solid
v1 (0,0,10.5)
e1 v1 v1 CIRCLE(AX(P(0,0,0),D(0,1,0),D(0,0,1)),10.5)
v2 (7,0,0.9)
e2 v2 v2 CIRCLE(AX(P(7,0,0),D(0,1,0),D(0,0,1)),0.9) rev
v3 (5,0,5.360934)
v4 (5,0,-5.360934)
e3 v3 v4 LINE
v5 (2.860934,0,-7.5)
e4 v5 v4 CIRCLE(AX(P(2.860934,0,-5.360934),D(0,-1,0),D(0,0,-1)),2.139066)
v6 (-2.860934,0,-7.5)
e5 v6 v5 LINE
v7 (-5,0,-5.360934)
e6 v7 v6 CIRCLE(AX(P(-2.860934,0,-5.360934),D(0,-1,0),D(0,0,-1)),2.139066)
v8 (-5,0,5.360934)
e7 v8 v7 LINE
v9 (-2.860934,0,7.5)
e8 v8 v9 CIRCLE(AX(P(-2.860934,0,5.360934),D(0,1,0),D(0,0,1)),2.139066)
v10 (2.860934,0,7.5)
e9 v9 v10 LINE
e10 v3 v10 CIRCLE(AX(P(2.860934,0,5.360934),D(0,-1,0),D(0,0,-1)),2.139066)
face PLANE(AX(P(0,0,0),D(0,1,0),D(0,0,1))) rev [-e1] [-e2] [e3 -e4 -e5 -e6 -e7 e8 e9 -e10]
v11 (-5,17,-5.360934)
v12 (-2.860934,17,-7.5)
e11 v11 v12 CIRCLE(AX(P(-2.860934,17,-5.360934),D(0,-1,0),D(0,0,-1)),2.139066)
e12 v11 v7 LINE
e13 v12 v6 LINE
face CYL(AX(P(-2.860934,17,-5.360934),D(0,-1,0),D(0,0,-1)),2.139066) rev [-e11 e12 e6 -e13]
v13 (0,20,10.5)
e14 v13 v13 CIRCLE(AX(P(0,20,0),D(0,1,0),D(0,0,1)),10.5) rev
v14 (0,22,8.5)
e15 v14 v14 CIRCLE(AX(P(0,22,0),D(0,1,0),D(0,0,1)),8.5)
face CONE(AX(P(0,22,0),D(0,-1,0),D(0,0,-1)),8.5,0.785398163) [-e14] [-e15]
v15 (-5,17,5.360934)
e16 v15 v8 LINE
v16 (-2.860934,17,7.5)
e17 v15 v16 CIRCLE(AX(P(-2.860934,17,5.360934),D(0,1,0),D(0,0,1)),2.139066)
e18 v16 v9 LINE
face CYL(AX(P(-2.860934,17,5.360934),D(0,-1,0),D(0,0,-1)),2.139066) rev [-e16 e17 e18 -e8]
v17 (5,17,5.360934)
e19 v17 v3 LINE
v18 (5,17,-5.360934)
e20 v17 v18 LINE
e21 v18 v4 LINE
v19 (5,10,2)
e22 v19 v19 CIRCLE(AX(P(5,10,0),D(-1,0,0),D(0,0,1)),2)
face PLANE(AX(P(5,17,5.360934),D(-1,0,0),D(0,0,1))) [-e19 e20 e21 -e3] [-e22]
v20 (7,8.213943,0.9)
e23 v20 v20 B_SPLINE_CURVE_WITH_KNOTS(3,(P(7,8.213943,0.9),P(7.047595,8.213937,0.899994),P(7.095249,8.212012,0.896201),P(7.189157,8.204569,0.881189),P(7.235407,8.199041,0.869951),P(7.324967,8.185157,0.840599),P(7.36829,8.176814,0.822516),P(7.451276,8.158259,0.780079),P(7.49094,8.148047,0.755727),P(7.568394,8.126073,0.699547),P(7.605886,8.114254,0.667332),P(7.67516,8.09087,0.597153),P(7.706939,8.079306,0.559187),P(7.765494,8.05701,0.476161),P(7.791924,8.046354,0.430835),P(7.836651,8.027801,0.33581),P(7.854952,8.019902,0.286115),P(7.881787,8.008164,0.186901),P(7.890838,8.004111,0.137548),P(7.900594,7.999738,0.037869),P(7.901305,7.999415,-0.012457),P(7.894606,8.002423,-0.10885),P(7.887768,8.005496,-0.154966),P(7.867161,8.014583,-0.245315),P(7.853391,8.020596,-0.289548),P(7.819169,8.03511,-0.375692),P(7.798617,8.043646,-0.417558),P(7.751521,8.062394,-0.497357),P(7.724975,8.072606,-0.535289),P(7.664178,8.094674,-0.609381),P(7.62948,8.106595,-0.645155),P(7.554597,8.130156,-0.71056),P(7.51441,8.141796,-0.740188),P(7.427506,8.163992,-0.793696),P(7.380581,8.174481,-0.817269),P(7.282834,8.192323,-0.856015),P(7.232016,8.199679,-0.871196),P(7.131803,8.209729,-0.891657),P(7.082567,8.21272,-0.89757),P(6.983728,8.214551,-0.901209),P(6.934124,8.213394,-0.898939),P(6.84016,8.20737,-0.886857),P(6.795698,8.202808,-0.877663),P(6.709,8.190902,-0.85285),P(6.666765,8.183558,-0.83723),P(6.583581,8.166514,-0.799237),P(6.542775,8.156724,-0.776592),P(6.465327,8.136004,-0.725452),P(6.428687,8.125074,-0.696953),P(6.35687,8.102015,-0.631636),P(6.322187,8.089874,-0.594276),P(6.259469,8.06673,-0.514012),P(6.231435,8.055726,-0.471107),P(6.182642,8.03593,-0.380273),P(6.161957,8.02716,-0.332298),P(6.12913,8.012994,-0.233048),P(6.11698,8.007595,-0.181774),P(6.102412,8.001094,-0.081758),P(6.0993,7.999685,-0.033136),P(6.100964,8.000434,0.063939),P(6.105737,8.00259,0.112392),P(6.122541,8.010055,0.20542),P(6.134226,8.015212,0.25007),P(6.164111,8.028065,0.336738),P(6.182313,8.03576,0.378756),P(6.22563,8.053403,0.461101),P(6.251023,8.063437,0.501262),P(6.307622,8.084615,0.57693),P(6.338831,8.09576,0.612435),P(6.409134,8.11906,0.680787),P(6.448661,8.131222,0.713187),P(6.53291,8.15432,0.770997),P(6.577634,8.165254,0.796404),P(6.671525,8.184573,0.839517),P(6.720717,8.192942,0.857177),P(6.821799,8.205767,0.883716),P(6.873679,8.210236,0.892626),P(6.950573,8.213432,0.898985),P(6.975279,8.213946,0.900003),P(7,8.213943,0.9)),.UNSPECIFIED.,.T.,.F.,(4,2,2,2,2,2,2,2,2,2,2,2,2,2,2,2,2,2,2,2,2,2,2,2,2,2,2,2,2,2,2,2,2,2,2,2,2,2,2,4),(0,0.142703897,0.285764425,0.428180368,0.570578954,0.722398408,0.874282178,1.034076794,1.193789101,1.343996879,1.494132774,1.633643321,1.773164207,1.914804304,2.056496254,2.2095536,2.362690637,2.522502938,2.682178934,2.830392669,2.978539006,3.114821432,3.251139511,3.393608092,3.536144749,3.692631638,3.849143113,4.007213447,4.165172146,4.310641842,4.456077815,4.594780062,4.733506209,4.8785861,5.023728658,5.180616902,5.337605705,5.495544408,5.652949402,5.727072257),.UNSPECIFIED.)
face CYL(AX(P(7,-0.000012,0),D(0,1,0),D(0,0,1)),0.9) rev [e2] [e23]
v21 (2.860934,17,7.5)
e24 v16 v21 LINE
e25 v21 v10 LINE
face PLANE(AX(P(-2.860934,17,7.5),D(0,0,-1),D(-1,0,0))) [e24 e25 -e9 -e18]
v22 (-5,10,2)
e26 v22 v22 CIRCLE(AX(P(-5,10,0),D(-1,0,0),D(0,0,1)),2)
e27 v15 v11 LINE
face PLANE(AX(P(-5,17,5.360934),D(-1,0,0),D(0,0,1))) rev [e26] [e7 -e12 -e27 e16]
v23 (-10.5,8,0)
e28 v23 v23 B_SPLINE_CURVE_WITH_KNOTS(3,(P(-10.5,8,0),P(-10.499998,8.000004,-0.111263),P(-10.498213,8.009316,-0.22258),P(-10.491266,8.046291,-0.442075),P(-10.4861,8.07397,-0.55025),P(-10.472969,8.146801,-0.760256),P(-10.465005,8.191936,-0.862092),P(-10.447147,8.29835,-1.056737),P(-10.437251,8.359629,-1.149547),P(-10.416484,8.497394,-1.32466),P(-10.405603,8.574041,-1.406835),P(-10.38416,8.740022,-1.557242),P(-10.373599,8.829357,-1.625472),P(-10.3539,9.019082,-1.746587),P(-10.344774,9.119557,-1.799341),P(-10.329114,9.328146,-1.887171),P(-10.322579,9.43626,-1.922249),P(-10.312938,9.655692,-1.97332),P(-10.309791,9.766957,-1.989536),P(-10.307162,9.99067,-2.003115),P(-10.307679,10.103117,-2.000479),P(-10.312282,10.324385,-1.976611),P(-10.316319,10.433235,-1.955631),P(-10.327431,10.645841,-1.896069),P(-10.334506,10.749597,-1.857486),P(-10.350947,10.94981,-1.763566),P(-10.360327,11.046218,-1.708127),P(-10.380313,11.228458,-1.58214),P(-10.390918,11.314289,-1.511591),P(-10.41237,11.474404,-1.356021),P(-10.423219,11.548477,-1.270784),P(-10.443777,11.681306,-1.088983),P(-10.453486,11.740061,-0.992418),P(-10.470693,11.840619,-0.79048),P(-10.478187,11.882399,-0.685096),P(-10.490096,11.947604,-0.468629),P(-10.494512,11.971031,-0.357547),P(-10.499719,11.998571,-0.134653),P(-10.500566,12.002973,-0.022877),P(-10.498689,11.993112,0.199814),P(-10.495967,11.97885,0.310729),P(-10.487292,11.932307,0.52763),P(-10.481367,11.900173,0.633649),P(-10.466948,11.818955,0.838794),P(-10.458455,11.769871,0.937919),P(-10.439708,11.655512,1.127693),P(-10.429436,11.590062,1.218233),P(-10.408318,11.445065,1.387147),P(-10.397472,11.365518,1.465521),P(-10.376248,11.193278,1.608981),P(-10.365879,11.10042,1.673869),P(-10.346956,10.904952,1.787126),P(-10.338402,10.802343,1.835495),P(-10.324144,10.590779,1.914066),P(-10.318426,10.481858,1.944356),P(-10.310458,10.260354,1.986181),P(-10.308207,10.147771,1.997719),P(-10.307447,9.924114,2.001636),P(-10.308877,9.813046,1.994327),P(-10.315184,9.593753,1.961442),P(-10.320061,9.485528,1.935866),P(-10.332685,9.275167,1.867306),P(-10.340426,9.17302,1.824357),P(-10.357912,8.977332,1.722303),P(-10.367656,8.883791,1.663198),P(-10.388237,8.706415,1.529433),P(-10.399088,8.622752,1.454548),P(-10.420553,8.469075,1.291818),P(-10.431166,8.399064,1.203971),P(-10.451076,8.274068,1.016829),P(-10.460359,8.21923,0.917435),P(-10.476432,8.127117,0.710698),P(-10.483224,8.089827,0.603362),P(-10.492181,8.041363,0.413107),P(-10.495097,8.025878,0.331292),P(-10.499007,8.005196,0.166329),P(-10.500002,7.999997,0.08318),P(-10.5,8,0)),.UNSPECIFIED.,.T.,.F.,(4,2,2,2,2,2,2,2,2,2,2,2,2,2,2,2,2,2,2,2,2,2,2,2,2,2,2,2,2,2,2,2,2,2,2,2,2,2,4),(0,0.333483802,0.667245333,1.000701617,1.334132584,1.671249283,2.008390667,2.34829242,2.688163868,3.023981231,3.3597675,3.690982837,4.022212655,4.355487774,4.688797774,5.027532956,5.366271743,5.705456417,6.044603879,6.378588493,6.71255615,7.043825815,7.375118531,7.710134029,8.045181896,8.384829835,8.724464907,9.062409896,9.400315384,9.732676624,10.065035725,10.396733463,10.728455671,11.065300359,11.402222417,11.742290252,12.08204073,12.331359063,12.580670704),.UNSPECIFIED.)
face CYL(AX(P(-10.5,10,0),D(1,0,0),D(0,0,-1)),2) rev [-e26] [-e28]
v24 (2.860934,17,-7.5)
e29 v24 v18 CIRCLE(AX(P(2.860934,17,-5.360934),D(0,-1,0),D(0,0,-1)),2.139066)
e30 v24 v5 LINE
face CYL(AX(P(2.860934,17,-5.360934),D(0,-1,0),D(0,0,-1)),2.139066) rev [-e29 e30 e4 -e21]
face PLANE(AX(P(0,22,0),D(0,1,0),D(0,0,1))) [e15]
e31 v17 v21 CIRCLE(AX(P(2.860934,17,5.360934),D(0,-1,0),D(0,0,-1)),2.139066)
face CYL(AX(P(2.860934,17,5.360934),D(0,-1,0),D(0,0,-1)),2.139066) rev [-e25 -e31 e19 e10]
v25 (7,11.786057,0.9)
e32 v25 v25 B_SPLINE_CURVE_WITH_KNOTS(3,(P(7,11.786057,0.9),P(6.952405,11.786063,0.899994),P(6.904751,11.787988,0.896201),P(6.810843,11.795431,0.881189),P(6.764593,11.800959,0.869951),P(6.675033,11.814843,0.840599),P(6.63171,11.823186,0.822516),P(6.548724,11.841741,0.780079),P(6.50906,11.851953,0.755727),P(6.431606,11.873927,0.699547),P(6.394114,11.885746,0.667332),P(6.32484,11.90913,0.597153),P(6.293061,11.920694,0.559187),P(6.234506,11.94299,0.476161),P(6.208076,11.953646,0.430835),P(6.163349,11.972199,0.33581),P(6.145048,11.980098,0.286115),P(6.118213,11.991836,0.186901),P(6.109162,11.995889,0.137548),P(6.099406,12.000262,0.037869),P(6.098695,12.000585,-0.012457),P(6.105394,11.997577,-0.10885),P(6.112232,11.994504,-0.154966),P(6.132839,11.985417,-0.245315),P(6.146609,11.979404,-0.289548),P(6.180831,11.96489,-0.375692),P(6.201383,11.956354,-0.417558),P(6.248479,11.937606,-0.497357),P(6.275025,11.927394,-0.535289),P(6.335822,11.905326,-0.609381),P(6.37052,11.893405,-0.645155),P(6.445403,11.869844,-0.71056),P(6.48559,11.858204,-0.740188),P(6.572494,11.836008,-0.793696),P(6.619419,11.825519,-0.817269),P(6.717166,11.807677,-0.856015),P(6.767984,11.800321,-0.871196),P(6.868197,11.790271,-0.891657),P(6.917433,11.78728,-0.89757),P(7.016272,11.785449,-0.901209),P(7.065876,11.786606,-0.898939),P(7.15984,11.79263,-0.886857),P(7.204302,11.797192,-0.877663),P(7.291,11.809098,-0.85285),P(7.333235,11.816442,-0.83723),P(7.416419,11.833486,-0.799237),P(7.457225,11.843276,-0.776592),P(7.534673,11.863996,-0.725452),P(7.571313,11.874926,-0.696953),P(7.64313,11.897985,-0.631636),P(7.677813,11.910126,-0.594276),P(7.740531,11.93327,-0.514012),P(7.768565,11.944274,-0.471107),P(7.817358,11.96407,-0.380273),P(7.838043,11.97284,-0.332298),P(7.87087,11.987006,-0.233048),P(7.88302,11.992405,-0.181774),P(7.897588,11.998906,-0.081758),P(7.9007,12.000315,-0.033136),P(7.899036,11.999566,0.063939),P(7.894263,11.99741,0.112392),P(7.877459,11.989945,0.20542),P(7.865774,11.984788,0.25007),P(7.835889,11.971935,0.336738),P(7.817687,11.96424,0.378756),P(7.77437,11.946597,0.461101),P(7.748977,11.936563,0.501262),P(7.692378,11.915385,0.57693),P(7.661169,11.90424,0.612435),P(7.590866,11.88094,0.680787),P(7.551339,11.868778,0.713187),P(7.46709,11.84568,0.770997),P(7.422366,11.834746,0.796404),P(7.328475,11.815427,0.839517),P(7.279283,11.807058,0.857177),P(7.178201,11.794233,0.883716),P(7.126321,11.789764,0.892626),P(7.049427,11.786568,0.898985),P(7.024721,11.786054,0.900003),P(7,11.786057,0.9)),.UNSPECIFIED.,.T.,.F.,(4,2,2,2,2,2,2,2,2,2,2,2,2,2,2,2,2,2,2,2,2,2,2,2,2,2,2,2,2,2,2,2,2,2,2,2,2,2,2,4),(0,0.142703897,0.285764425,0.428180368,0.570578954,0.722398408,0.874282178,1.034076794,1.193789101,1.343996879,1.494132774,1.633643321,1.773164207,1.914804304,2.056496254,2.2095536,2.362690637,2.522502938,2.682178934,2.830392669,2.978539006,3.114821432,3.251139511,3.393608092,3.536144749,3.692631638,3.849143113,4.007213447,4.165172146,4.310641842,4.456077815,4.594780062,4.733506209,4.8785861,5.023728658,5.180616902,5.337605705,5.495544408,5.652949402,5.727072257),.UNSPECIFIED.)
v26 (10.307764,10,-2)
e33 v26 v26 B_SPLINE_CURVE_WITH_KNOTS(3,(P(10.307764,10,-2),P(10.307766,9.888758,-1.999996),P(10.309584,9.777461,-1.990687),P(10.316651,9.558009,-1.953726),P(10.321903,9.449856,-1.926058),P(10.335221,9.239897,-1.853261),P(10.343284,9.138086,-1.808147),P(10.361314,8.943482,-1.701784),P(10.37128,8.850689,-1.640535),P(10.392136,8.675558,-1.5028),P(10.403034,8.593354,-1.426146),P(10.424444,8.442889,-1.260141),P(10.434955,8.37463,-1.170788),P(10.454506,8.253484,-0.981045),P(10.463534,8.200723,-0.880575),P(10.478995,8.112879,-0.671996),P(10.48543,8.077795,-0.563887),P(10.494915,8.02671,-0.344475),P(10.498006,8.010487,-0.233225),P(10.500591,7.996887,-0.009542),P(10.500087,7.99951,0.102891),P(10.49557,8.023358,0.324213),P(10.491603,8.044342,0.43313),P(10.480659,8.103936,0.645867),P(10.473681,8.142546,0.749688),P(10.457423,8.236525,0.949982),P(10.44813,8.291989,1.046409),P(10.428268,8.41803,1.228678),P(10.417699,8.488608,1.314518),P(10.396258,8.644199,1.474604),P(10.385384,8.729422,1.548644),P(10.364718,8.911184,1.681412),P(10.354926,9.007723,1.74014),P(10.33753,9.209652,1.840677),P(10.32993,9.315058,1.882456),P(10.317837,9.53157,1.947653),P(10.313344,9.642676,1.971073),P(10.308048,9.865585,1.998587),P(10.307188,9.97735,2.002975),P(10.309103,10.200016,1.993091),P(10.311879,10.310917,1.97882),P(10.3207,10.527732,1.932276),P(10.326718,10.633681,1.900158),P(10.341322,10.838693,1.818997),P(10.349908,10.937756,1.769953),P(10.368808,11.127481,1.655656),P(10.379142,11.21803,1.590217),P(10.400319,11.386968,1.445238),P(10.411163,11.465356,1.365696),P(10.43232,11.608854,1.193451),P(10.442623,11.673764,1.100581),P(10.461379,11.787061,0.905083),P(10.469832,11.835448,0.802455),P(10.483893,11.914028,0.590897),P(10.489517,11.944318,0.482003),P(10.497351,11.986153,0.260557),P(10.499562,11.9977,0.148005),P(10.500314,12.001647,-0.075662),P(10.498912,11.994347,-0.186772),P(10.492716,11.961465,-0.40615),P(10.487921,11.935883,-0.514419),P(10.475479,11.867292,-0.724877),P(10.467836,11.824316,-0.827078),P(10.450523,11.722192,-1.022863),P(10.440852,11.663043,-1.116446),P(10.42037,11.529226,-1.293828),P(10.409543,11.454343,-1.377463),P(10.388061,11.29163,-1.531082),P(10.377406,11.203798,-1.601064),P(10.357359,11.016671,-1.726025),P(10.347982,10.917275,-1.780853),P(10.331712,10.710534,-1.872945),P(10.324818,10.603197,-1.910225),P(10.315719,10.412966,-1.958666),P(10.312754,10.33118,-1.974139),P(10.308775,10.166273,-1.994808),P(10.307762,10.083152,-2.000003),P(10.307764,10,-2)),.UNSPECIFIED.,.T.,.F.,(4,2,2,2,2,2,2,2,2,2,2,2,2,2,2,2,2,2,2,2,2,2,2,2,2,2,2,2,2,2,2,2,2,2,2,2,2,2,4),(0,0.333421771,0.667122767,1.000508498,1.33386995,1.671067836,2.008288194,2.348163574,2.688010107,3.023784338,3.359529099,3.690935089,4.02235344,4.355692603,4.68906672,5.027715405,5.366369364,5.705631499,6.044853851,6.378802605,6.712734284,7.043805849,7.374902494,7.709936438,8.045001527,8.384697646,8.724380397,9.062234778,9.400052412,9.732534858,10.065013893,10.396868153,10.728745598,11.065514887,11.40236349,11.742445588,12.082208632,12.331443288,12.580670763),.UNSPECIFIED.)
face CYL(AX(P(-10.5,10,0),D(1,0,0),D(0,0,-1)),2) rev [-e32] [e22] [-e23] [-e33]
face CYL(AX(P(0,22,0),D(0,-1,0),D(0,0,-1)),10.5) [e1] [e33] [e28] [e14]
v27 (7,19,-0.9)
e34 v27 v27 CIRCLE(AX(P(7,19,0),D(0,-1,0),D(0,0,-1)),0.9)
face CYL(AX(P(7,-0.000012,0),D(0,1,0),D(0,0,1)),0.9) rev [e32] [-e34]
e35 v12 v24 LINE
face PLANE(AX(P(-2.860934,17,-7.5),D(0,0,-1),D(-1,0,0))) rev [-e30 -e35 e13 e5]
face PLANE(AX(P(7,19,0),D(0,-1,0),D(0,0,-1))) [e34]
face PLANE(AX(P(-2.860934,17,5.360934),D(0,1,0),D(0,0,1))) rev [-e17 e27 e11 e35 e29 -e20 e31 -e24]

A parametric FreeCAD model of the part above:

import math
import FreeCAD as App
import Part
import Sketcher

V = App.Vector
Q = App.Units.Quantity


def edges_at(feature, points):
    """Names of the edges that pass closest to the given points."""
    edges = feature.Shape.Edges
    near = lambda p: min(range(len(edges)), key=lambda i: edges[i].distToShape(Part.Vertex(*p))[0])
    return sorted({f"Edge{near(p) + 1}" for p in points})

doc = App.newDocument("Part")
body = doc.addObject("PartDesign::Body", "Body")

# Sketch on XZ plane
sketch1 = body.newObject("Sketcher::SketchObject", "Sketch")
sketch1.AttachmentSupport = (doc.getObject("XZ_Plane"), [""])
sketch1.MapMode = "FlatFace"
sketch1.addGeometry(Part.Circle(V(0, 0, 0), V(0, 0, 1), 10), False)
sketch1.addConstraint([
    Sketcher.Constraint("Coincident", 0, 3, -1, 1),
    Sketcher.Constraint("Diameter", 0, Q("21 mm")),
])
pad1 = body.newObject("PartDesign::Pad", "Pad")
pad1.Profile = sketch1
pad1.Length = 22
pad1.Reversed = True

# Sketch on XZ plane
sketch2 = body.newObject("Sketcher::SketchObject", "Sketch001")
sketch2.AttachmentSupport = (doc.getObject("XZ_Plane"), [""])
sketch2.MapMode = "FlatFace"
sketch2.addGeometry([
    Part.LineSegment(V(2.9, 7.5, 0), V(-2.9, 7.5, 0)),  # 0
    Part.ArcOfCircle(Part.Circle(V(-2.9, 5.4, 0), V(0, 0, 1), 2.1), math.radians(90), math.radians(180)),  # 1
    Part.LineSegment(V(-5, 5.4, 0), V(-5, -5.4, 0)),  # 2
    Part.ArcOfCircle(Part.Circle(V(-2.9, -5.4, 0), V(0, 0, 1), 2.1), math.radians(180), math.radians(270)),  # 3
    Part.LineSegment(V(-2.9, -7.5, 0), V(2.9, -7.5, 0)),  # 4
    Part.ArcOfCircle(Part.Circle(V(2.9, -5.4, 0), V(0, 0, 1), 2.1), math.radians(-90), math.radians(0)),  # 5
    Part.LineSegment(V(5, -5.4, 0), V(5, 5.4, 0)),  # 6
    Part.ArcOfCircle(Part.Circle(V(2.9, 5.4, 0), V(0, 0, 1), 2.1), math.radians(0), math.radians(90)),  # 7
], False)
sketch2.addConstraint([
    Sketcher.Constraint("Tangent", 0, 2, 1, 1),
    Sketcher.Constraint("Tangent", 1, 2, 2, 1),
    Sketcher.Constraint("Tangent", 2, 2, 3, 1),
    Sketcher.Constraint("Tangent", 3, 2, 4, 1),
    Sketcher.Constraint("Tangent", 4, 2, 5, 1),
    Sketcher.Constraint("Tangent", 5, 2, 6, 1),
    Sketcher.Constraint("Tangent", 6, 2, 7, 1),
    Sketcher.Constraint("Tangent", 7, 2, 0, 1),
    Sketcher.Constraint("Horizontal", 0),
    Sketcher.Constraint("Vertical", 2),
    Sketcher.Constraint("Horizontal", 4),
    Sketcher.Constraint("Vertical", 6),
    Sketcher.Constraint("Equal", 1, 3),
    Sketcher.Constraint("Equal", 3, 5),
    Sketcher.Constraint("Equal", 5, 7),
    Sketcher.Constraint("Symmetric", 1, 3, 5, 3, -1, 1),
    Sketcher.Constraint("DistanceX", 1, 2, -1, 1, Q("5 mm")),
    Sketcher.Constraint("DistanceY", -1, 1, 0, 2, Q("7.5 mm")),
    Sketcher.Constraint("Radius", 1, Q("2.139066 mm")),
])
pocket1 = body.newObject("PartDesign::Pocket", "Pocket")
pocket1.Profile = sketch2
pocket1.Length = 17
doc.recompute()

chamfer = body.newObject("PartDesign::Chamfer", "Chamfer")
chamfer.Base = (pocket1, edges_at(pocket1, [(0, 22, -10.5)]))
chamfer.Size = 2

# Sketch on YZ plane
sketch3 = body.newObject("Sketcher::SketchObject", "Sketch002")
sketch3.AttachmentSupport = (doc.getObject("YZ_Plane"), [""])
sketch3.MapMode = "FlatFace"
sketch3.addGeometry(Part.Circle(V(10, 0, 0), V(0, 0, 1), 2), False)
sketch3.addConstraint([
    Sketcher.Constraint("PointOnObject", 0, 3, -1),
    Sketcher.Constraint("Diameter", 0, Q("4 mm")),
    Sketcher.Constraint("DistanceX", -1, 1, 0, 3, Q("10 mm")),
])
pocket2 = body.newObject("PartDesign::Pocket", "Pocket001")
pocket2.Profile = sketch3
pocket2.Type = "ThroughAll"
pocket2.Midplane = True

# Sketch on XZ plane
sketch4 = body.newObject("Sketcher::SketchObject", "Sketch003")
sketch4.AttachmentSupport = (doc.getObject("XZ_Plane"), [""])
sketch4.MapMode = "FlatFace"
sketch4.addGeometry(Part.Circle(V(7, 0, 0), V(0, 0, 1), 0.9), False)
sketch4.addConstraint([
    Sketcher.Constraint("PointOnObject", 0, 3, -1),
    Sketcher.Constraint("Diameter", 0, Q("1.8 mm")),
    Sketcher.Constraint("DistanceX", -1, 1, 0, 3, Q("7 mm")),
])
pocket3 = body.newObject("PartDesign::Pocket", "Pocket002")
pocket3.Profile = sketch4
pocket3.Type = "TwoLengths"
pocket3.Length = 27.542419
pocket3.Length2 = 19
pocket3.Reversed = True

doc.recompute()
